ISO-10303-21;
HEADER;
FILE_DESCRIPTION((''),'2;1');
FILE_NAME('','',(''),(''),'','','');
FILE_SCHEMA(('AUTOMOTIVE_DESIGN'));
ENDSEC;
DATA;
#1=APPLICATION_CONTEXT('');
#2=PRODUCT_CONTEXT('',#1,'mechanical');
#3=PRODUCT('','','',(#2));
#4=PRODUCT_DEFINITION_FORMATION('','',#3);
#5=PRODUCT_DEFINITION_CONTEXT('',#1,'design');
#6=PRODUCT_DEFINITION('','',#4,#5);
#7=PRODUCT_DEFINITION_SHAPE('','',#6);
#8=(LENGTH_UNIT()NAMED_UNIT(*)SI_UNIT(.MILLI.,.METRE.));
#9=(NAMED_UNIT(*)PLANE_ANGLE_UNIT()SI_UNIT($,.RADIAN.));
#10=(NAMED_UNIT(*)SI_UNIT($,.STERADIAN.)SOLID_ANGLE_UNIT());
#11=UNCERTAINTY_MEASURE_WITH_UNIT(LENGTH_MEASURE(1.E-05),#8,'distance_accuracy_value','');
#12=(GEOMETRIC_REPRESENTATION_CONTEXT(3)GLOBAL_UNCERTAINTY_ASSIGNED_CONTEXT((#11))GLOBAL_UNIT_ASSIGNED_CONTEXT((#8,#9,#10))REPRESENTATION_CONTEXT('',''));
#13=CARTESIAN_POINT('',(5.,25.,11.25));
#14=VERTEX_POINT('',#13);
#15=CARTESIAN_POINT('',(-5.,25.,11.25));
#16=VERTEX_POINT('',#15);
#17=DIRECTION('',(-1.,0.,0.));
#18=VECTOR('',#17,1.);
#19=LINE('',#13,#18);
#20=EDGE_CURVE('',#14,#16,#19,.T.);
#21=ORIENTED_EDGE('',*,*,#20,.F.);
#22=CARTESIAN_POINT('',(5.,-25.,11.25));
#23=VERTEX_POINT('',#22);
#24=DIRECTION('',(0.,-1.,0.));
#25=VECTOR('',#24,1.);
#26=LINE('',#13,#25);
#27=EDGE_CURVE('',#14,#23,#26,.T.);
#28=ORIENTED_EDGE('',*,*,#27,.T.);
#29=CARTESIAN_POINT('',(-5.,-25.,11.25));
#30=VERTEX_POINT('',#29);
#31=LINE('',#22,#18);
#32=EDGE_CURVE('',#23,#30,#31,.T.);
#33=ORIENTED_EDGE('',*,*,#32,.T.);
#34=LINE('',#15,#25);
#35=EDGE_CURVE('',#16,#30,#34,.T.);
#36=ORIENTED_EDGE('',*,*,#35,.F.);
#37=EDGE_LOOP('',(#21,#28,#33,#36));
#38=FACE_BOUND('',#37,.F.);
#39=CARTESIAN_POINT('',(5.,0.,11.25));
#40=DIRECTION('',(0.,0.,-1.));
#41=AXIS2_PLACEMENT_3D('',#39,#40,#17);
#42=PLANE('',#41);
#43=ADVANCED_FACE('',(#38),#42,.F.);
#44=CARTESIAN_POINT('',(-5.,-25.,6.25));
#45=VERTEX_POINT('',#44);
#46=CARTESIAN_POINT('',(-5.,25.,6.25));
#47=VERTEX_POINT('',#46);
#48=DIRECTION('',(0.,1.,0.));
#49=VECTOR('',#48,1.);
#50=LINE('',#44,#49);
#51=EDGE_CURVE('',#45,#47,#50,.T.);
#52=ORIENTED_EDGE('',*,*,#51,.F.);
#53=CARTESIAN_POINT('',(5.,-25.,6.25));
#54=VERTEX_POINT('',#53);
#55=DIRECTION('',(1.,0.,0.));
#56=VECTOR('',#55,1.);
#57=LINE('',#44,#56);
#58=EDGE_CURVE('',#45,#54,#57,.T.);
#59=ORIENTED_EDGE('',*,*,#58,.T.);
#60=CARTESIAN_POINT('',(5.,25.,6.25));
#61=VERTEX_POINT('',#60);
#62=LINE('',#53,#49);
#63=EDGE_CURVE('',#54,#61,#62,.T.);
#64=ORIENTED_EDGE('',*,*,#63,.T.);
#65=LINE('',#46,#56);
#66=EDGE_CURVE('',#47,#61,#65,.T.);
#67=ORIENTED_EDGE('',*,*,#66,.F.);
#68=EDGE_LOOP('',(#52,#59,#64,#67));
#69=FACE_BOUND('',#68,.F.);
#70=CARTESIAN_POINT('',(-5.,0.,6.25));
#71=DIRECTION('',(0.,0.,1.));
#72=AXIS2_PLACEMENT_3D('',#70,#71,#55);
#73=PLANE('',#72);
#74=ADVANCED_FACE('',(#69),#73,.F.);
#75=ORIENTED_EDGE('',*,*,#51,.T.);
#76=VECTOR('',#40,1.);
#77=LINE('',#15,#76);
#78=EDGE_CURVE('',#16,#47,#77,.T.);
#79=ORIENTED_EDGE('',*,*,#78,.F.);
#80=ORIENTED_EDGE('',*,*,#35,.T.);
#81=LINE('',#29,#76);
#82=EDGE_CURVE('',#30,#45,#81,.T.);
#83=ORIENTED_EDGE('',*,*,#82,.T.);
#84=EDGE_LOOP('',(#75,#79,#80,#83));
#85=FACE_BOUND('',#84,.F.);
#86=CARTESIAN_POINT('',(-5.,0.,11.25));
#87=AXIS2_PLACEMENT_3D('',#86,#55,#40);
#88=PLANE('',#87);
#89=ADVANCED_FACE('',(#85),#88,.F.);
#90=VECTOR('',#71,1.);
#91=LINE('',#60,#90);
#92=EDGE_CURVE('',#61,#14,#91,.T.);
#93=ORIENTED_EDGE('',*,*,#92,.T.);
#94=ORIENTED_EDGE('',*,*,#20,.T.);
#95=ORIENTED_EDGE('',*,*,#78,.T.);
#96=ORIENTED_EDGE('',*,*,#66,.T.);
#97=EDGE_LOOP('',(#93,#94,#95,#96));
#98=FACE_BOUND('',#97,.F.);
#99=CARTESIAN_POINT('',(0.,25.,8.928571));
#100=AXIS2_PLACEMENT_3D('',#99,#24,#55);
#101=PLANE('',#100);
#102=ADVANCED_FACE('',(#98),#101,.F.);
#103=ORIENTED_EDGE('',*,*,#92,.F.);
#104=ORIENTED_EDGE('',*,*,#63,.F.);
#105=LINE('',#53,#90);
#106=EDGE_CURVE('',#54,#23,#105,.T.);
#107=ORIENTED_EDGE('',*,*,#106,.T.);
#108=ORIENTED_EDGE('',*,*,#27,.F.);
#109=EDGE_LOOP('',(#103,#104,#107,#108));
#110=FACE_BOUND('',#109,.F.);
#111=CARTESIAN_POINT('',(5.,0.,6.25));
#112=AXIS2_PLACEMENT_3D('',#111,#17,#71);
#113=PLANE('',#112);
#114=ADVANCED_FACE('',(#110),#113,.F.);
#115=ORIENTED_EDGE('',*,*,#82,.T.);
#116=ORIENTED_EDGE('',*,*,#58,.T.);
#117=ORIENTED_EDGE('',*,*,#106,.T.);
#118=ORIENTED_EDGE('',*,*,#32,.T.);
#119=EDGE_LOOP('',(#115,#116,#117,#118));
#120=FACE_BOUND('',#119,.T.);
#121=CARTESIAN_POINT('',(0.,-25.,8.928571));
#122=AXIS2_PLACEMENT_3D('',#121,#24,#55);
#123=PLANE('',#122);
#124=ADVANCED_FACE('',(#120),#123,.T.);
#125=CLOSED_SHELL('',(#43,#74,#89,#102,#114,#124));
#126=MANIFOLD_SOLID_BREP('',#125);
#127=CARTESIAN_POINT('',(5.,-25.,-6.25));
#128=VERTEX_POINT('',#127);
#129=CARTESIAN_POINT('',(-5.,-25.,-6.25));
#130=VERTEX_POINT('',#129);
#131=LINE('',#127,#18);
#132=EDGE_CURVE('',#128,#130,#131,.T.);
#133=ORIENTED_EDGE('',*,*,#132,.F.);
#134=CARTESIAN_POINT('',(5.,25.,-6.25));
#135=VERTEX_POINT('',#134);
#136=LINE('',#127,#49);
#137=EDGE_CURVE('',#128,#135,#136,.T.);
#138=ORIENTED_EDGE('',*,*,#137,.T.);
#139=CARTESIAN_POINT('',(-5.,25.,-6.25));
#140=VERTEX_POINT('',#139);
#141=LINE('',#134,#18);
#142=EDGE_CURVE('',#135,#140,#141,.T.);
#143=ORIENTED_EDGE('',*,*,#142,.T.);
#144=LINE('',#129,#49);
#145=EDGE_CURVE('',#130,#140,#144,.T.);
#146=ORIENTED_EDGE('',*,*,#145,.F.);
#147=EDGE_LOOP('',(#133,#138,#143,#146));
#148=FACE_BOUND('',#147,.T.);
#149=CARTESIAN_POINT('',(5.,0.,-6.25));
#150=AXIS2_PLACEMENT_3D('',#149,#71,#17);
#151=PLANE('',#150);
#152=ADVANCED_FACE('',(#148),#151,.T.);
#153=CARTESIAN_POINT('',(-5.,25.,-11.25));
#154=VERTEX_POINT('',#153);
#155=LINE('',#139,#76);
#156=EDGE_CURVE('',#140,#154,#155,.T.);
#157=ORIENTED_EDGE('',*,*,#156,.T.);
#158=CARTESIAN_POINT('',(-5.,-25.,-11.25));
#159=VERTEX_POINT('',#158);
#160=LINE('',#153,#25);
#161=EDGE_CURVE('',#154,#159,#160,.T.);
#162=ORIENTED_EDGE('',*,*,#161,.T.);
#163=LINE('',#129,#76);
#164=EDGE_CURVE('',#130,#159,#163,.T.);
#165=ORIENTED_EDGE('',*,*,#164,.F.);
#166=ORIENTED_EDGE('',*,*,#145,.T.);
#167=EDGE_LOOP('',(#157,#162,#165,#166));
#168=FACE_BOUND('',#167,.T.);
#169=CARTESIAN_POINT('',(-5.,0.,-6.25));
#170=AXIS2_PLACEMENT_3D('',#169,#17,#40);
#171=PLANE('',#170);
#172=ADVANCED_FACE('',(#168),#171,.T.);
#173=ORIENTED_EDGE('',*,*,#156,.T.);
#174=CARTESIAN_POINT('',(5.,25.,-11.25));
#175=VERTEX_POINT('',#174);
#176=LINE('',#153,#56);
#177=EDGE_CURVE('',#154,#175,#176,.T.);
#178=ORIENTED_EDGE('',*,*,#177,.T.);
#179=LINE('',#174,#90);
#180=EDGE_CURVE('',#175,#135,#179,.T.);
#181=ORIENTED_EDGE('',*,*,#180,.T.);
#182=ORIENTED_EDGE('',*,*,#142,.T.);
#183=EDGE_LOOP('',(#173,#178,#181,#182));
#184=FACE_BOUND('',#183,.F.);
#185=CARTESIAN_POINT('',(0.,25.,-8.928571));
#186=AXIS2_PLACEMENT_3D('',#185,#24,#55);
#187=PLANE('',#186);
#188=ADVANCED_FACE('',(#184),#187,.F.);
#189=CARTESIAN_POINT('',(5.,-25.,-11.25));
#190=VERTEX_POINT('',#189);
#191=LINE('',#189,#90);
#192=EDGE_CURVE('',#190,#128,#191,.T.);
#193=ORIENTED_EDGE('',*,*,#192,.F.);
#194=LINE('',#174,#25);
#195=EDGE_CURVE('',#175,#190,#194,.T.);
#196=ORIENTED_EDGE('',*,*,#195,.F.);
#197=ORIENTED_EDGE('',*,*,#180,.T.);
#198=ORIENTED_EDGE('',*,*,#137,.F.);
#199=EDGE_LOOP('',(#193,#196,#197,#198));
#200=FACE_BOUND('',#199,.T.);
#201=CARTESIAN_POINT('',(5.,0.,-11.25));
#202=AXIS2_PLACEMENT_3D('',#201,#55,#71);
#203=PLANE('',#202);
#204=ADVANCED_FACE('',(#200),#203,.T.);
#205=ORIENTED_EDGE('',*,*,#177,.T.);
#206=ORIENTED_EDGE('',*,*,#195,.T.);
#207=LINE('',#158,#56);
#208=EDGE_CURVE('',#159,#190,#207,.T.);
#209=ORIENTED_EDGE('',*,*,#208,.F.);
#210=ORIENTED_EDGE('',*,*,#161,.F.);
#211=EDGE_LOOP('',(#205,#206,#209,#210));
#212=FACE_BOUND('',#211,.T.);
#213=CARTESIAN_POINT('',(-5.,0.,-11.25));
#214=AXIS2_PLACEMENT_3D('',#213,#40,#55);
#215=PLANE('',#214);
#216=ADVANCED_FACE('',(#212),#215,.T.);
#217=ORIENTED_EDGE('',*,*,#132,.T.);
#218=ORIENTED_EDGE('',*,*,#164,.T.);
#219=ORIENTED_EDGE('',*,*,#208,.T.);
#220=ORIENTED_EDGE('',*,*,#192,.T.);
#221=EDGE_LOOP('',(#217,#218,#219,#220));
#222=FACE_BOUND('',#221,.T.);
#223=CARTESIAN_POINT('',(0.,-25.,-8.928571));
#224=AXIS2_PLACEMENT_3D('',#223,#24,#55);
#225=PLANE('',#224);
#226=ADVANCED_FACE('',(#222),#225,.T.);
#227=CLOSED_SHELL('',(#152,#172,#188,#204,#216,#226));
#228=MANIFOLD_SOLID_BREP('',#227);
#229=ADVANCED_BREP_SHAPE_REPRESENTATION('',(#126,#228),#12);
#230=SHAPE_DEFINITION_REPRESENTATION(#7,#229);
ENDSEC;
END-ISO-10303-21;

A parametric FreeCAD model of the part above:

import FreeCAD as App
import Part
import Sketcher
from FreeCAD import Vector
Q = App.Units.Quantity

doc = App.newDocument("Part")
body = doc.addObject("PartDesign::Body", "Body")
body.AllowCompound = True

sketch1 = body.newObject("Sketcher::SketchObject", "Sketch")
sketch1.AttachmentSupport = (doc.getObject("XZ_Plane"), [""])
sketch1.MapMode = "FlatFace"
sketch1.addGeometry(Part.LineSegment(Vector(5, 6, 0), Vector(5, 11, 0)), False)
sketch1.addGeometry(Part.LineSegment(Vector(5, 11, 0), Vector(-5, 11, 0)), False)
sketch1.addGeometry(Part.LineSegment(Vector(-5, 11, 0), Vector(-5, 6, 0)), False)
sketch1.addGeometry(Part.LineSegment(Vector(-5, 6, 0), Vector(5, 6, 0)), False)
sketch1.addGeometry(Part.LineSegment(Vector(-5, -6, 0), Vector(-5, -11, 0)), False)
sketch1.addGeometry(Part.LineSegment(Vector(-5, -11, 0), Vector(5, -11, 0)), False)
sketch1.addGeometry(Part.LineSegment(Vector(5, -11, 0), Vector(5, -6, 0)), False)
sketch1.addGeometry(Part.LineSegment(Vector(5, -6, 0), Vector(-5, -6, 0)), False)
sketch1.addConstraint(Sketcher.Constraint("Coincident", 0, 2, 1, 1))
sketch1.addConstraint(Sketcher.Constraint("Coincident", 1, 2, 2, 1))
sketch1.addConstraint(Sketcher.Constraint("Coincident", 2, 2, 3, 1))
sketch1.addConstraint(Sketcher.Constraint("Coincident", 3, 2, 0, 1))
sketch1.addConstraint(Sketcher.Constraint("Coincident", 4, 2, 5, 1))
sketch1.addConstraint(Sketcher.Constraint("Coincident", 5, 2, 6, 1))
sketch1.addConstraint(Sketcher.Constraint("Coincident", 6, 2, 7, 1))
sketch1.addConstraint(Sketcher.Constraint("Coincident", 7, 2, 4, 1))
sketch1.addConstraint(Sketcher.Constraint("Vertical", 0))
sketch1.addConstraint(Sketcher.Constraint("Horizontal", 1))
sketch1.addConstraint(Sketcher.Constraint("Vertical", 2))
sketch1.addConstraint(Sketcher.Constraint("Horizontal", 3))
sketch1.addConstraint(Sketcher.Constraint("Vertical", 4))
sketch1.addConstraint(Sketcher.Constraint("Horizontal", 5))
sketch1.addConstraint(Sketcher.Constraint("Vertical", 6))
sketch1.addConstraint(Sketcher.Constraint("Horizontal", 7))
sketch1.addConstraint(Sketcher.Constraint("Symmetric", 0, 2, 4, 2, -1, 1))
sketch1.addConstraint(Sketcher.Constraint("Symmetric", 2, 2, 6, 2, -1, 1))
sketch1.addConstraint(Sketcher.Constraint("Vertical", 2, 2, 4, 2))
sketch1.addConstraint(Sketcher.Constraint("DistanceX", 1, 2, 1, 1, Q("10 mm")))
sketch1.addConstraint(Sketcher.Constraint("DistanceY", 0, 1, 0, 2, Q("5 mm")))
sketch1.addConstraint(Sketcher.Constraint("DistanceY", 4, 2, 2, 2, Q("17.5 mm")))
pad1 = body.newObject("PartDesign::Pad", "Pad")
pad1.Profile = sketch1
pad1.Length = 50
pad1.Midplane = True

doc.recompute()
